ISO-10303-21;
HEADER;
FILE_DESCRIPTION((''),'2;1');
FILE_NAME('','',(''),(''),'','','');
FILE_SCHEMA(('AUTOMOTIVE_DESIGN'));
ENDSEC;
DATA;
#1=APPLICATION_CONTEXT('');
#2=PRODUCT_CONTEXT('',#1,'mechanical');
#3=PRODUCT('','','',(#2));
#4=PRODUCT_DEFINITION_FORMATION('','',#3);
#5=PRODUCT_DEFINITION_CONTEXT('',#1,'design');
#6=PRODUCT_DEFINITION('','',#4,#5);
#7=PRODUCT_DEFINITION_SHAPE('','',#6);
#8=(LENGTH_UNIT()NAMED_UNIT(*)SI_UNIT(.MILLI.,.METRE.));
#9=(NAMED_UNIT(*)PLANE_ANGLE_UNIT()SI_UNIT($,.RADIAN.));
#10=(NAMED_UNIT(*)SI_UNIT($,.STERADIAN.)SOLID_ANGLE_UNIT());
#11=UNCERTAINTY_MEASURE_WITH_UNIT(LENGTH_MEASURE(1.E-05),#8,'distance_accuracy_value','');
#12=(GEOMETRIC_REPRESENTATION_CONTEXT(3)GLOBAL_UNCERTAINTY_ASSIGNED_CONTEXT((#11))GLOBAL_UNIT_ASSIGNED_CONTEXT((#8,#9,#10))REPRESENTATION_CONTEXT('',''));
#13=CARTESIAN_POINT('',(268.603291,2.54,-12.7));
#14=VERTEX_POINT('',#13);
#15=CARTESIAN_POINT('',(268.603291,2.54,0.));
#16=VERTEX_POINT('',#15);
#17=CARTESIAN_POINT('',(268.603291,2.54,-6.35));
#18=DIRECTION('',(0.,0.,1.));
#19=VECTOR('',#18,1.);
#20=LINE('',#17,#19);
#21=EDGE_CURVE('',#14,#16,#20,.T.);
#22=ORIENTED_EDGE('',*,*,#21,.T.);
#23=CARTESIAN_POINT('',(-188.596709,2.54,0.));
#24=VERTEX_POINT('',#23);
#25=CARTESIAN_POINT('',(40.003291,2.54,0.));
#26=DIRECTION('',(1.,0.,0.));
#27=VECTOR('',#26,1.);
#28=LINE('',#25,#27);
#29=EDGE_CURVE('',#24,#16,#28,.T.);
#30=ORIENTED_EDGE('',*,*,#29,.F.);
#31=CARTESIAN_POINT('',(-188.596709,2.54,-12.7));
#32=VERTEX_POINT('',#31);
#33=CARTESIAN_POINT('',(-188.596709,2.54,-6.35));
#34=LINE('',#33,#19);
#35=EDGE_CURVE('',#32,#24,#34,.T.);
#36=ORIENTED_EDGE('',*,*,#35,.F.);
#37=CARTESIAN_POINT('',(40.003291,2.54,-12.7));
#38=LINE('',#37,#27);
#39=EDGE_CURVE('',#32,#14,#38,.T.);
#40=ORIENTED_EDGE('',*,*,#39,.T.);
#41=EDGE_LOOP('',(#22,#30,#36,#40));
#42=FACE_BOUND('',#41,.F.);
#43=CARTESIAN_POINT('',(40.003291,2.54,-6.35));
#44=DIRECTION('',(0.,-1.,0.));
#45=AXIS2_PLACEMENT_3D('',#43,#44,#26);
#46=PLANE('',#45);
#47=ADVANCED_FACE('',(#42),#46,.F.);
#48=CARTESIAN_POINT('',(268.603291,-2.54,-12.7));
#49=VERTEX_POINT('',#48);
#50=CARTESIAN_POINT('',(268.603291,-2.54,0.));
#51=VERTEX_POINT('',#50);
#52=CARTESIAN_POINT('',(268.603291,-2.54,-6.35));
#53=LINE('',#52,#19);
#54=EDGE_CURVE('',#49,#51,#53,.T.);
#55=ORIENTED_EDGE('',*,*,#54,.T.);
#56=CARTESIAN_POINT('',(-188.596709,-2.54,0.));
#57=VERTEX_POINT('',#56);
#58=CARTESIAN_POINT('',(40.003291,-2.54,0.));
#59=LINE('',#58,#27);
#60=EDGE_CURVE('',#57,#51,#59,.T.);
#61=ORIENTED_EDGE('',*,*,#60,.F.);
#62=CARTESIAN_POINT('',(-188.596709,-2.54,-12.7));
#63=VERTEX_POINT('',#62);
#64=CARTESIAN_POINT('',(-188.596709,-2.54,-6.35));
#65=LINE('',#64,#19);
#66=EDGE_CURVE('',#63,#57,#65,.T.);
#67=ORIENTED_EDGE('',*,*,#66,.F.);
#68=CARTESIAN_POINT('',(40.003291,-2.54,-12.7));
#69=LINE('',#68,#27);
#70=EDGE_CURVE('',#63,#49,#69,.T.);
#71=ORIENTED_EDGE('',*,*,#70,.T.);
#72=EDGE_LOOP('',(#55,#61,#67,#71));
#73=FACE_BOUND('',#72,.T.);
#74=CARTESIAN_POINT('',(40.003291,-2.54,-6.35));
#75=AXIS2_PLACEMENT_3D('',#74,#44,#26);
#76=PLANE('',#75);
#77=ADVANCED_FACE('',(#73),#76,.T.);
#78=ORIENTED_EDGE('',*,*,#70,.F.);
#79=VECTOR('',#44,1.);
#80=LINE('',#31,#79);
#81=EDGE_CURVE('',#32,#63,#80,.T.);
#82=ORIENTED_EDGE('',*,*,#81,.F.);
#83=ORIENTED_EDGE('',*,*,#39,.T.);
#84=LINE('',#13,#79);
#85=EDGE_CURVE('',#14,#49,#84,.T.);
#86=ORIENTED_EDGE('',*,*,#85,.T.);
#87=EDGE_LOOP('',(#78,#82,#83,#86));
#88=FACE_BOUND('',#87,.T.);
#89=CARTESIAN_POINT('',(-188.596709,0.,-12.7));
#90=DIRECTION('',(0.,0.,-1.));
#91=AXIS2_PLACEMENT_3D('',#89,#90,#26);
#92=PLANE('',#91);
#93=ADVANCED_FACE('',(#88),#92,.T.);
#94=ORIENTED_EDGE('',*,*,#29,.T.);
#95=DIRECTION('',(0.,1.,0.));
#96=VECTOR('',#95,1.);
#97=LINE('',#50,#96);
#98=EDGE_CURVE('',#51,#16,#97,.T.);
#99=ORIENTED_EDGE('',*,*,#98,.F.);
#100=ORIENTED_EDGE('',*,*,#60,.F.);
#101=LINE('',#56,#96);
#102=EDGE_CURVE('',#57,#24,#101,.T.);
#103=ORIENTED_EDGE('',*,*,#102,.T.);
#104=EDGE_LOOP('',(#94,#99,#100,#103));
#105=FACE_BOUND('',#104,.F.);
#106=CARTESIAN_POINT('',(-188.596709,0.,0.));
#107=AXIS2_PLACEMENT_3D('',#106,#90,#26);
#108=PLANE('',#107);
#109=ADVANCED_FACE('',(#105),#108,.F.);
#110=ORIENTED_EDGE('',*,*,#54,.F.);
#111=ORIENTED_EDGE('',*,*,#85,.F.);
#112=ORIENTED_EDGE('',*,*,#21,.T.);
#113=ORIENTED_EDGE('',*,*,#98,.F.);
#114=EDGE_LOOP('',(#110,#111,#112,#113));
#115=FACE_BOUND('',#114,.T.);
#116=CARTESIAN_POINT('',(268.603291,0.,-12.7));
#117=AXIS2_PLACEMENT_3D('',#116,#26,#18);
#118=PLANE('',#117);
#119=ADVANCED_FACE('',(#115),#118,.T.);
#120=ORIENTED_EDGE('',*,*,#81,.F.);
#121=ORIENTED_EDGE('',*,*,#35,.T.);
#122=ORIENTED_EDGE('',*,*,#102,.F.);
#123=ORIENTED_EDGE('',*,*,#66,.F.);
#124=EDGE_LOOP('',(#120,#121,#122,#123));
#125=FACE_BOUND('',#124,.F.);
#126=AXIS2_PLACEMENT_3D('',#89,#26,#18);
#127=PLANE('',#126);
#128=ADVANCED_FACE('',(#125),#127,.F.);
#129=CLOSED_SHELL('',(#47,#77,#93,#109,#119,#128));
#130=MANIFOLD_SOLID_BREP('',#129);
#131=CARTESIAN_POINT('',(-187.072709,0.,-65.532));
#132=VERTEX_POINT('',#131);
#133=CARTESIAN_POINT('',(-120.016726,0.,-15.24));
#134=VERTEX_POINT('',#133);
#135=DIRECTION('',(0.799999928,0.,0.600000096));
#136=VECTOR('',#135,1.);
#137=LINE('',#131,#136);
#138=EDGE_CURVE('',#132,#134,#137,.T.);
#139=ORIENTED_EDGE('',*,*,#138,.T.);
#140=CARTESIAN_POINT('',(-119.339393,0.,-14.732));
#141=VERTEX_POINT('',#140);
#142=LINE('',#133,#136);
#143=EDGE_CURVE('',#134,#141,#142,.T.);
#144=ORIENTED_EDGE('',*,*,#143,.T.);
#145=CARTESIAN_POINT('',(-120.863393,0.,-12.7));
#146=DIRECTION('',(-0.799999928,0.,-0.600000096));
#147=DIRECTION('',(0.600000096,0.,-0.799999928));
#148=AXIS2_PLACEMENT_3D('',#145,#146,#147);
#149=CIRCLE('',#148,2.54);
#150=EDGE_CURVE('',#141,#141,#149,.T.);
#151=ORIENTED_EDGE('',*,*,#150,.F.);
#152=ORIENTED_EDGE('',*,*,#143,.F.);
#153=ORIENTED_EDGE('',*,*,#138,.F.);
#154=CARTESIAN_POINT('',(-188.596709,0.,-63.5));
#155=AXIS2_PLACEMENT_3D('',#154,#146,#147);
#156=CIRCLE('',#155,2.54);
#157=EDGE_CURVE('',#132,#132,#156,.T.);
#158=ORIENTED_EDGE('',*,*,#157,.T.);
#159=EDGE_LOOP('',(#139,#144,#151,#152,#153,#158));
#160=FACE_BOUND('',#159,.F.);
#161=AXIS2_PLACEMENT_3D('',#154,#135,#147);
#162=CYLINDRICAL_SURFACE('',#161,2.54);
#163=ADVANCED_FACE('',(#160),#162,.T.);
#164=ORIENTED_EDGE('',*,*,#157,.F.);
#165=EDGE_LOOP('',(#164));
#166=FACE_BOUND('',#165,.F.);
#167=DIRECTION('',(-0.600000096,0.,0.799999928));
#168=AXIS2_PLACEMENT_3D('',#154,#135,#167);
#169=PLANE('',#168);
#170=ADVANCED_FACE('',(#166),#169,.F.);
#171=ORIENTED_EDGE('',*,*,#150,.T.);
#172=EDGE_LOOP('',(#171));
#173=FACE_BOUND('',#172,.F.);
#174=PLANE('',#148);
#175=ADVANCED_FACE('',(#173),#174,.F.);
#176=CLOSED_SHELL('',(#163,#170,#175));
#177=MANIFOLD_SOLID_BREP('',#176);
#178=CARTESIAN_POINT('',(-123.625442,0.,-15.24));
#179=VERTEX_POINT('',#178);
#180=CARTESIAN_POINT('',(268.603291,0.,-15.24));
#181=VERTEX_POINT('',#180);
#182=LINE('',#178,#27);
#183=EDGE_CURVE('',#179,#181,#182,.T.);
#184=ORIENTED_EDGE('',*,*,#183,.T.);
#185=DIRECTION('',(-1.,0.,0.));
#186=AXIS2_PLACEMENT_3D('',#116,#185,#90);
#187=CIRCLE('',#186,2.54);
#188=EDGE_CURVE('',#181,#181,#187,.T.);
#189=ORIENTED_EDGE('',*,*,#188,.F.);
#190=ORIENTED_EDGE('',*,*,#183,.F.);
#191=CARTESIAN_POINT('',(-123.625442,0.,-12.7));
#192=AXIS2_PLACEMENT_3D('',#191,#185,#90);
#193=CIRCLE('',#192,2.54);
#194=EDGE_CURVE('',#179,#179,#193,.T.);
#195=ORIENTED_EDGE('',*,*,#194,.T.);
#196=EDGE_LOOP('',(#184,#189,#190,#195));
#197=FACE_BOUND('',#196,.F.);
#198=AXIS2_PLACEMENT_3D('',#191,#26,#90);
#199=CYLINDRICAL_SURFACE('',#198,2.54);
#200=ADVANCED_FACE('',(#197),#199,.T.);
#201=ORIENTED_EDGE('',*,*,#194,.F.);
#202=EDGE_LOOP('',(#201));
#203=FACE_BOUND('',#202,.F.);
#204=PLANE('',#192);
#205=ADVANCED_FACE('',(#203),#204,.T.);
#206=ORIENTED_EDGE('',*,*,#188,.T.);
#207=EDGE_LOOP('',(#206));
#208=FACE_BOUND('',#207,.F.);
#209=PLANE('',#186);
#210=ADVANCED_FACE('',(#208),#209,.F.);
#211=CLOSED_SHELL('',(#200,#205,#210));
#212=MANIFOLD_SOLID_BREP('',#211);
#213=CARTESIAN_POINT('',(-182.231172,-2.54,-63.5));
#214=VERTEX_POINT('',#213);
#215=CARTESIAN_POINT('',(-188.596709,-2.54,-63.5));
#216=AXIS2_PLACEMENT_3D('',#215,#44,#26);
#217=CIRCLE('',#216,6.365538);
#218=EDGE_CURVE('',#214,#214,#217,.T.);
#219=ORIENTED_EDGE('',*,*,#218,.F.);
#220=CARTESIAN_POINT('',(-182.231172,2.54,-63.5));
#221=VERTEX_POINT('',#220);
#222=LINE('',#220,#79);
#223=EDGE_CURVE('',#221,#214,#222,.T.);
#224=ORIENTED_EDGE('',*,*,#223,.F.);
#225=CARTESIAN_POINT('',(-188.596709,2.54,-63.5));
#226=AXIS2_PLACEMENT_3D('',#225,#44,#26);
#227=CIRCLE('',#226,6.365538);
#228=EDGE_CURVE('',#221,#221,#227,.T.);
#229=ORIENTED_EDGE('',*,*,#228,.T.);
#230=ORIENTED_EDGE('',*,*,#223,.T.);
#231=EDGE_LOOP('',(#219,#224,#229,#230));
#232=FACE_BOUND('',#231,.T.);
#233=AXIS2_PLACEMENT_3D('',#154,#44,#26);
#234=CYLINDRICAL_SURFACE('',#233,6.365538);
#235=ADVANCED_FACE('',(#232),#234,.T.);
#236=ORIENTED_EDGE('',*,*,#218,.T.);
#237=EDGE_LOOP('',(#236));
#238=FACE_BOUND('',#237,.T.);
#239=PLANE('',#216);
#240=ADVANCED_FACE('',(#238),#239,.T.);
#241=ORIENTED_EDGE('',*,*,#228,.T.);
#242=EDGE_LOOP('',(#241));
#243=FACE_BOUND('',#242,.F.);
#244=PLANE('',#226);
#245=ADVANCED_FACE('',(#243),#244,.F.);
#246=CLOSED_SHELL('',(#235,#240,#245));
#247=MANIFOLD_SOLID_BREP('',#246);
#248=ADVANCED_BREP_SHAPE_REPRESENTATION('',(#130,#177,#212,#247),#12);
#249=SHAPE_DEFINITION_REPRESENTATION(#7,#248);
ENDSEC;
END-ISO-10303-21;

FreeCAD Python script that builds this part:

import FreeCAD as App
import Part
import Sketcher

V = App.Vector
Q = App.Units.Quantity

doc = App.newDocument("Part")
body = doc.addObject("PartDesign::Body", "Body")

# Sketch on XZ plane
sketch1 = body.newObject("Sketcher::SketchObject", "Sketch")
sketch1.AttachmentSupport = (doc.getObject("XZ_Plane"), [""])
sketch1.MapMode = "FlatFace"
sketch1.addGeometry(Part.LineSegment(V(-189, 0, 0), V(-189, -13, 0)), False)
sketch1.addGeometry(Part.LineSegment(V(-189, -13, 0), V(269, -13, 0)), False)
sketch1.addGeometry(Part.LineSegment(V(269, -13, 0), V(269, 0, 0)), False)
sketch1.addGeometry(Part.LineSegment(V(269, 0, 0), V(-189, 0, 0)), False)
sketch1.addConstraint(Sketcher.Constraint("Coincident", 0, 2, 1, 1))
sketch1.addConstraint(Sketcher.Constraint("Coincident", 1, 2, 2, 1))
sketch1.addConstraint(Sketcher.Constraint("Coincident", 2, 2, 3, 1))
sketch1.addConstraint(Sketcher.Constraint("Coincident", 3, 2, 0, 1))
sketch1.addConstraint(Sketcher.Constraint("Vertical", 0))
sketch1.addConstraint(Sketcher.Constraint("Horizontal", 1))
sketch1.addConstraint(Sketcher.Constraint("Vertical", 2))
sketch1.addConstraint(Sketcher.Constraint("Horizontal", 3))
sketch1.addConstraint(Sketcher.Constraint("PointOnObject", 2, 2, -1))
sketch1.addConstraint(Sketcher.Constraint("DistanceX", 1, 1, 1, 2, Q("18 in")))
sketch1.addConstraint(Sketcher.Constraint("DistanceY", 0, 2, 0, 1, Q("0.5 in")))
sketch1.addConstraint(Sketcher.Constraint("DistanceX", 0, 2, -1, 1, Q("188.596709 mm")))
pad1 = body.newObject("PartDesign::Pad", "Pad")
pad1.Profile = sketch1
pad1.Length = Q("0.2 in")
pad1.Midplane = True
body2 = doc.addObject("PartDesign::Body", "Body001")

# Sketch on XZ plane
sketch2 = body2.newObject("Sketcher::SketchObject", "Sketch001")
sketch2.AttachmentSupport = (doc.getObject("XZ_Plane001"), [""])
sketch2.MapMode = "FlatFace"
sketch2.addGeometry(Part.Circle(V(-189, -64, 0), V(0, 0, 1), 6), False)
sketch2.addConstraint(Sketcher.Constraint("DistanceY", 0, 3, -1, 1, Q("2.5 in")))
sketch2.addConstraint(Sketcher.Constraint("Diameter", 0, Q("12.731075 mm")))
sketch2.addConstraint(Sketcher.Constraint("DistanceX", 0, 3, -1, 1, Q("188.596709 mm")))
pad2 = body2.newObject("PartDesign::Pad", "Pad001")
pad2.Profile = sketch2
pad2.Length = Q("0.2 in")
pad2.Midplane = True
body3 = doc.addObject("PartDesign::Body", "Body002")

# Sketch on XZ plane
sketch3 = body3.newObject("Sketcher::SketchObject", "Sketch002")
sketch3.AttachmentSupport = (doc.getObject("XZ_Plane002"), [""])
sketch3.MapMode = "FlatFace"
sketch3.addGeometry(Part.LineSegment(V(-119.3, -14.7, 0), V(-120.9, -12.7, 0)), False)
sketch3.addGeometry(Part.LineSegment(V(-120.9, -12.7, 0), V(-123.6, -14.8, 0)), False)
sketch3.addGeometry(Part.LineSegment(V(-123.6, -14.8, 0), V(-188.6, -63.5, 0)), False)
sketch3.addGeometry(Part.LineSegment(V(-188.6, -63.5, 0), V(-187.1, -65.5, 0)), False)
sketch3.addGeometry(Part.LineSegment(V(-187.1, -65.5, 0), V(-120, -15.2, 0)), False)
sketch3.addGeometry(Part.LineSegment(V(-120, -15.2, 0), V(-119.3, -14.7, 0)), False)
sketch3.addGeometry(Part.LineSegment(V(-120.9, -12.7, 0), V(-188.6, -63.5, 0)), True)  # axis
sketch3.addConstraint(Sketcher.Constraint("Coincident", 0, 2, 1, 1))
sketch3.addConstraint(Sketcher.Constraint("Coincident", 1, 2, 2, 1))
sketch3.addConstraint(Sketcher.Constraint("Coincident", 2, 2, 3, 1))
sketch3.addConstraint(Sketcher.Constraint("Coincident", 3, 2, 4, 1))
sketch3.addConstraint(Sketcher.Constraint("Coincident", 4, 2, 5, 1))
sketch3.addConstraint(Sketcher.Constraint("Coincident", 5, 2, 0, 1))
sketch3.addConstraint(Sketcher.Constraint("Coincident", 6, 1, 0, 2))
sketch3.addConstraint(Sketcher.Constraint("Coincident", 6, 2, 2, 2))
sketch3.addConstraint(Sketcher.Constraint("Perpendicular", 0, 1))
sketch3.addConstraint(Sketcher.Constraint("Parallel", 1, 2))
sketch3.addConstraint(Sketcher.Constraint("Perpendicular", 2, 3))
sketch3.addConstraint(Sketcher.Constraint("Perpendicular", 3, 4))
sketch3.addConstraint(Sketcher.Constraint("Parallel", 4, 5))
sketch3.addConstraint(Sketcher.Constraint("DistanceY", 2, 2, 0, 2, Q("2 in")))
sketch3.addConstraint(Sketcher.Constraint("Distance", 0, Q("0.1 in")))
sketch3.addConstraint(Sketcher.Constraint("DistanceY", 0, 2, -1, 1, Q("0.5 in")))
sketch3.addConstraint(Sketcher.Constraint("DistanceY", 4, 2, -1, 1, Q("0.6 in")))
sketch3.addConstraint(Sketcher.Constraint("DistanceY", 3, 2, -1, 1, Q("2.58 in")))
sketch3.addConstraint(Sketcher.Constraint("Distance", 2, Q("81.214091 mm")))
sketch3.addConstraint(Sketcher.Constraint("DistanceX", 2, 2, -1, 1, Q("188.596709 mm")))
revolution = body3.newObject("PartDesign::Revolution", "Revolution")
revolution.Profile = sketch3
revolution.ReferenceAxis = (sketch3, ["Axis0"])
revolution.Angle = 360
body4 = doc.addObject("PartDesign::Body", "Body003")

# Sketch on XZ plane
sketch4 = body4.newObject("Sketcher::SketchObject", "Sketch003")
sketch4.AttachmentSupport = (doc.getObject("XZ_Plane003"), [""])
sketch4.MapMode = "FlatFace"
sketch4.addGeometry(Part.LineSegment(V(268.6, -12.7, 0), V(-123.6, -12.7, 0)), False)
sketch4.addGeometry(Part.LineSegment(V(-123.6, -12.7, 0), V(-123.6, -15.2, 0)), False)
sketch4.addGeometry(Part.LineSegment(V(-123.6, -15.2, 0), V(268.6, -15.2, 0)), False)
sketch4.addGeometry(Part.LineSegment(V(268.6, -15.2, 0), V(268.6, -12.7, 0)), False)
sketch4.addGeometry(Part.LineSegment(V(268.6, -12.7, 0), V(-123.6, -12.7, 0)), True)  # axis
sketch4.addConstraint(Sketcher.Constraint("Coincident", 0, 2, 1, 1))
sketch4.addConstraint(Sketcher.Constraint("Coincident", 1, 2, 2, 1))
sketch4.addConstraint(Sketcher.Constraint("Coincident", 2, 2, 3, 1))
sketch4.addConstraint(Sketcher.Constraint("Coincident", 3, 2, 0, 1))
sketch4.addConstraint(Sketcher.Constraint("Horizontal", 0))
sketch4.addConstraint(Sketcher.Constraint("Vertical", 1))
sketch4.addConstraint(Sketcher.Constraint("Horizontal", 2))
sketch4.addConstraint(Sketcher.Constraint("Vertical", 3))
sketch4.addConstraint(Sketcher.Constraint("Horizontal", 4))
sketch4.addConstraint(Sketcher.Constraint("Coincident", 4, 1, 3, 2))
sketch4.addConstraint(Sketcher.Constraint("Vertical", 1, 2, 4, 2))
sketch4.addConstraint(Sketcher.Constraint("DistanceY", 1, 2, 1, 1, Q("0.1 in")))
sketch4.addConstraint(Sketcher.Constraint("DistanceY", 0, 2, -1, 1, Q("0.5 in")))
sketch4.addConstraint(Sketcher.Constraint("DistanceX", 0, 2, 0, 1, Q("392.228733 mm")))
sketch4.addConstraint(Sketcher.Constraint("DistanceX", -1, 1, 2, 2, Q("268.603291 mm")))
revolution2 = body4.newObject("PartDesign::Revolution", "Revolution001")
revolution2.Profile = sketch4
revolution2.ReferenceAxis = (sketch4, ["Axis0"])
revolution2.Angle = 360

doc.recompute()
